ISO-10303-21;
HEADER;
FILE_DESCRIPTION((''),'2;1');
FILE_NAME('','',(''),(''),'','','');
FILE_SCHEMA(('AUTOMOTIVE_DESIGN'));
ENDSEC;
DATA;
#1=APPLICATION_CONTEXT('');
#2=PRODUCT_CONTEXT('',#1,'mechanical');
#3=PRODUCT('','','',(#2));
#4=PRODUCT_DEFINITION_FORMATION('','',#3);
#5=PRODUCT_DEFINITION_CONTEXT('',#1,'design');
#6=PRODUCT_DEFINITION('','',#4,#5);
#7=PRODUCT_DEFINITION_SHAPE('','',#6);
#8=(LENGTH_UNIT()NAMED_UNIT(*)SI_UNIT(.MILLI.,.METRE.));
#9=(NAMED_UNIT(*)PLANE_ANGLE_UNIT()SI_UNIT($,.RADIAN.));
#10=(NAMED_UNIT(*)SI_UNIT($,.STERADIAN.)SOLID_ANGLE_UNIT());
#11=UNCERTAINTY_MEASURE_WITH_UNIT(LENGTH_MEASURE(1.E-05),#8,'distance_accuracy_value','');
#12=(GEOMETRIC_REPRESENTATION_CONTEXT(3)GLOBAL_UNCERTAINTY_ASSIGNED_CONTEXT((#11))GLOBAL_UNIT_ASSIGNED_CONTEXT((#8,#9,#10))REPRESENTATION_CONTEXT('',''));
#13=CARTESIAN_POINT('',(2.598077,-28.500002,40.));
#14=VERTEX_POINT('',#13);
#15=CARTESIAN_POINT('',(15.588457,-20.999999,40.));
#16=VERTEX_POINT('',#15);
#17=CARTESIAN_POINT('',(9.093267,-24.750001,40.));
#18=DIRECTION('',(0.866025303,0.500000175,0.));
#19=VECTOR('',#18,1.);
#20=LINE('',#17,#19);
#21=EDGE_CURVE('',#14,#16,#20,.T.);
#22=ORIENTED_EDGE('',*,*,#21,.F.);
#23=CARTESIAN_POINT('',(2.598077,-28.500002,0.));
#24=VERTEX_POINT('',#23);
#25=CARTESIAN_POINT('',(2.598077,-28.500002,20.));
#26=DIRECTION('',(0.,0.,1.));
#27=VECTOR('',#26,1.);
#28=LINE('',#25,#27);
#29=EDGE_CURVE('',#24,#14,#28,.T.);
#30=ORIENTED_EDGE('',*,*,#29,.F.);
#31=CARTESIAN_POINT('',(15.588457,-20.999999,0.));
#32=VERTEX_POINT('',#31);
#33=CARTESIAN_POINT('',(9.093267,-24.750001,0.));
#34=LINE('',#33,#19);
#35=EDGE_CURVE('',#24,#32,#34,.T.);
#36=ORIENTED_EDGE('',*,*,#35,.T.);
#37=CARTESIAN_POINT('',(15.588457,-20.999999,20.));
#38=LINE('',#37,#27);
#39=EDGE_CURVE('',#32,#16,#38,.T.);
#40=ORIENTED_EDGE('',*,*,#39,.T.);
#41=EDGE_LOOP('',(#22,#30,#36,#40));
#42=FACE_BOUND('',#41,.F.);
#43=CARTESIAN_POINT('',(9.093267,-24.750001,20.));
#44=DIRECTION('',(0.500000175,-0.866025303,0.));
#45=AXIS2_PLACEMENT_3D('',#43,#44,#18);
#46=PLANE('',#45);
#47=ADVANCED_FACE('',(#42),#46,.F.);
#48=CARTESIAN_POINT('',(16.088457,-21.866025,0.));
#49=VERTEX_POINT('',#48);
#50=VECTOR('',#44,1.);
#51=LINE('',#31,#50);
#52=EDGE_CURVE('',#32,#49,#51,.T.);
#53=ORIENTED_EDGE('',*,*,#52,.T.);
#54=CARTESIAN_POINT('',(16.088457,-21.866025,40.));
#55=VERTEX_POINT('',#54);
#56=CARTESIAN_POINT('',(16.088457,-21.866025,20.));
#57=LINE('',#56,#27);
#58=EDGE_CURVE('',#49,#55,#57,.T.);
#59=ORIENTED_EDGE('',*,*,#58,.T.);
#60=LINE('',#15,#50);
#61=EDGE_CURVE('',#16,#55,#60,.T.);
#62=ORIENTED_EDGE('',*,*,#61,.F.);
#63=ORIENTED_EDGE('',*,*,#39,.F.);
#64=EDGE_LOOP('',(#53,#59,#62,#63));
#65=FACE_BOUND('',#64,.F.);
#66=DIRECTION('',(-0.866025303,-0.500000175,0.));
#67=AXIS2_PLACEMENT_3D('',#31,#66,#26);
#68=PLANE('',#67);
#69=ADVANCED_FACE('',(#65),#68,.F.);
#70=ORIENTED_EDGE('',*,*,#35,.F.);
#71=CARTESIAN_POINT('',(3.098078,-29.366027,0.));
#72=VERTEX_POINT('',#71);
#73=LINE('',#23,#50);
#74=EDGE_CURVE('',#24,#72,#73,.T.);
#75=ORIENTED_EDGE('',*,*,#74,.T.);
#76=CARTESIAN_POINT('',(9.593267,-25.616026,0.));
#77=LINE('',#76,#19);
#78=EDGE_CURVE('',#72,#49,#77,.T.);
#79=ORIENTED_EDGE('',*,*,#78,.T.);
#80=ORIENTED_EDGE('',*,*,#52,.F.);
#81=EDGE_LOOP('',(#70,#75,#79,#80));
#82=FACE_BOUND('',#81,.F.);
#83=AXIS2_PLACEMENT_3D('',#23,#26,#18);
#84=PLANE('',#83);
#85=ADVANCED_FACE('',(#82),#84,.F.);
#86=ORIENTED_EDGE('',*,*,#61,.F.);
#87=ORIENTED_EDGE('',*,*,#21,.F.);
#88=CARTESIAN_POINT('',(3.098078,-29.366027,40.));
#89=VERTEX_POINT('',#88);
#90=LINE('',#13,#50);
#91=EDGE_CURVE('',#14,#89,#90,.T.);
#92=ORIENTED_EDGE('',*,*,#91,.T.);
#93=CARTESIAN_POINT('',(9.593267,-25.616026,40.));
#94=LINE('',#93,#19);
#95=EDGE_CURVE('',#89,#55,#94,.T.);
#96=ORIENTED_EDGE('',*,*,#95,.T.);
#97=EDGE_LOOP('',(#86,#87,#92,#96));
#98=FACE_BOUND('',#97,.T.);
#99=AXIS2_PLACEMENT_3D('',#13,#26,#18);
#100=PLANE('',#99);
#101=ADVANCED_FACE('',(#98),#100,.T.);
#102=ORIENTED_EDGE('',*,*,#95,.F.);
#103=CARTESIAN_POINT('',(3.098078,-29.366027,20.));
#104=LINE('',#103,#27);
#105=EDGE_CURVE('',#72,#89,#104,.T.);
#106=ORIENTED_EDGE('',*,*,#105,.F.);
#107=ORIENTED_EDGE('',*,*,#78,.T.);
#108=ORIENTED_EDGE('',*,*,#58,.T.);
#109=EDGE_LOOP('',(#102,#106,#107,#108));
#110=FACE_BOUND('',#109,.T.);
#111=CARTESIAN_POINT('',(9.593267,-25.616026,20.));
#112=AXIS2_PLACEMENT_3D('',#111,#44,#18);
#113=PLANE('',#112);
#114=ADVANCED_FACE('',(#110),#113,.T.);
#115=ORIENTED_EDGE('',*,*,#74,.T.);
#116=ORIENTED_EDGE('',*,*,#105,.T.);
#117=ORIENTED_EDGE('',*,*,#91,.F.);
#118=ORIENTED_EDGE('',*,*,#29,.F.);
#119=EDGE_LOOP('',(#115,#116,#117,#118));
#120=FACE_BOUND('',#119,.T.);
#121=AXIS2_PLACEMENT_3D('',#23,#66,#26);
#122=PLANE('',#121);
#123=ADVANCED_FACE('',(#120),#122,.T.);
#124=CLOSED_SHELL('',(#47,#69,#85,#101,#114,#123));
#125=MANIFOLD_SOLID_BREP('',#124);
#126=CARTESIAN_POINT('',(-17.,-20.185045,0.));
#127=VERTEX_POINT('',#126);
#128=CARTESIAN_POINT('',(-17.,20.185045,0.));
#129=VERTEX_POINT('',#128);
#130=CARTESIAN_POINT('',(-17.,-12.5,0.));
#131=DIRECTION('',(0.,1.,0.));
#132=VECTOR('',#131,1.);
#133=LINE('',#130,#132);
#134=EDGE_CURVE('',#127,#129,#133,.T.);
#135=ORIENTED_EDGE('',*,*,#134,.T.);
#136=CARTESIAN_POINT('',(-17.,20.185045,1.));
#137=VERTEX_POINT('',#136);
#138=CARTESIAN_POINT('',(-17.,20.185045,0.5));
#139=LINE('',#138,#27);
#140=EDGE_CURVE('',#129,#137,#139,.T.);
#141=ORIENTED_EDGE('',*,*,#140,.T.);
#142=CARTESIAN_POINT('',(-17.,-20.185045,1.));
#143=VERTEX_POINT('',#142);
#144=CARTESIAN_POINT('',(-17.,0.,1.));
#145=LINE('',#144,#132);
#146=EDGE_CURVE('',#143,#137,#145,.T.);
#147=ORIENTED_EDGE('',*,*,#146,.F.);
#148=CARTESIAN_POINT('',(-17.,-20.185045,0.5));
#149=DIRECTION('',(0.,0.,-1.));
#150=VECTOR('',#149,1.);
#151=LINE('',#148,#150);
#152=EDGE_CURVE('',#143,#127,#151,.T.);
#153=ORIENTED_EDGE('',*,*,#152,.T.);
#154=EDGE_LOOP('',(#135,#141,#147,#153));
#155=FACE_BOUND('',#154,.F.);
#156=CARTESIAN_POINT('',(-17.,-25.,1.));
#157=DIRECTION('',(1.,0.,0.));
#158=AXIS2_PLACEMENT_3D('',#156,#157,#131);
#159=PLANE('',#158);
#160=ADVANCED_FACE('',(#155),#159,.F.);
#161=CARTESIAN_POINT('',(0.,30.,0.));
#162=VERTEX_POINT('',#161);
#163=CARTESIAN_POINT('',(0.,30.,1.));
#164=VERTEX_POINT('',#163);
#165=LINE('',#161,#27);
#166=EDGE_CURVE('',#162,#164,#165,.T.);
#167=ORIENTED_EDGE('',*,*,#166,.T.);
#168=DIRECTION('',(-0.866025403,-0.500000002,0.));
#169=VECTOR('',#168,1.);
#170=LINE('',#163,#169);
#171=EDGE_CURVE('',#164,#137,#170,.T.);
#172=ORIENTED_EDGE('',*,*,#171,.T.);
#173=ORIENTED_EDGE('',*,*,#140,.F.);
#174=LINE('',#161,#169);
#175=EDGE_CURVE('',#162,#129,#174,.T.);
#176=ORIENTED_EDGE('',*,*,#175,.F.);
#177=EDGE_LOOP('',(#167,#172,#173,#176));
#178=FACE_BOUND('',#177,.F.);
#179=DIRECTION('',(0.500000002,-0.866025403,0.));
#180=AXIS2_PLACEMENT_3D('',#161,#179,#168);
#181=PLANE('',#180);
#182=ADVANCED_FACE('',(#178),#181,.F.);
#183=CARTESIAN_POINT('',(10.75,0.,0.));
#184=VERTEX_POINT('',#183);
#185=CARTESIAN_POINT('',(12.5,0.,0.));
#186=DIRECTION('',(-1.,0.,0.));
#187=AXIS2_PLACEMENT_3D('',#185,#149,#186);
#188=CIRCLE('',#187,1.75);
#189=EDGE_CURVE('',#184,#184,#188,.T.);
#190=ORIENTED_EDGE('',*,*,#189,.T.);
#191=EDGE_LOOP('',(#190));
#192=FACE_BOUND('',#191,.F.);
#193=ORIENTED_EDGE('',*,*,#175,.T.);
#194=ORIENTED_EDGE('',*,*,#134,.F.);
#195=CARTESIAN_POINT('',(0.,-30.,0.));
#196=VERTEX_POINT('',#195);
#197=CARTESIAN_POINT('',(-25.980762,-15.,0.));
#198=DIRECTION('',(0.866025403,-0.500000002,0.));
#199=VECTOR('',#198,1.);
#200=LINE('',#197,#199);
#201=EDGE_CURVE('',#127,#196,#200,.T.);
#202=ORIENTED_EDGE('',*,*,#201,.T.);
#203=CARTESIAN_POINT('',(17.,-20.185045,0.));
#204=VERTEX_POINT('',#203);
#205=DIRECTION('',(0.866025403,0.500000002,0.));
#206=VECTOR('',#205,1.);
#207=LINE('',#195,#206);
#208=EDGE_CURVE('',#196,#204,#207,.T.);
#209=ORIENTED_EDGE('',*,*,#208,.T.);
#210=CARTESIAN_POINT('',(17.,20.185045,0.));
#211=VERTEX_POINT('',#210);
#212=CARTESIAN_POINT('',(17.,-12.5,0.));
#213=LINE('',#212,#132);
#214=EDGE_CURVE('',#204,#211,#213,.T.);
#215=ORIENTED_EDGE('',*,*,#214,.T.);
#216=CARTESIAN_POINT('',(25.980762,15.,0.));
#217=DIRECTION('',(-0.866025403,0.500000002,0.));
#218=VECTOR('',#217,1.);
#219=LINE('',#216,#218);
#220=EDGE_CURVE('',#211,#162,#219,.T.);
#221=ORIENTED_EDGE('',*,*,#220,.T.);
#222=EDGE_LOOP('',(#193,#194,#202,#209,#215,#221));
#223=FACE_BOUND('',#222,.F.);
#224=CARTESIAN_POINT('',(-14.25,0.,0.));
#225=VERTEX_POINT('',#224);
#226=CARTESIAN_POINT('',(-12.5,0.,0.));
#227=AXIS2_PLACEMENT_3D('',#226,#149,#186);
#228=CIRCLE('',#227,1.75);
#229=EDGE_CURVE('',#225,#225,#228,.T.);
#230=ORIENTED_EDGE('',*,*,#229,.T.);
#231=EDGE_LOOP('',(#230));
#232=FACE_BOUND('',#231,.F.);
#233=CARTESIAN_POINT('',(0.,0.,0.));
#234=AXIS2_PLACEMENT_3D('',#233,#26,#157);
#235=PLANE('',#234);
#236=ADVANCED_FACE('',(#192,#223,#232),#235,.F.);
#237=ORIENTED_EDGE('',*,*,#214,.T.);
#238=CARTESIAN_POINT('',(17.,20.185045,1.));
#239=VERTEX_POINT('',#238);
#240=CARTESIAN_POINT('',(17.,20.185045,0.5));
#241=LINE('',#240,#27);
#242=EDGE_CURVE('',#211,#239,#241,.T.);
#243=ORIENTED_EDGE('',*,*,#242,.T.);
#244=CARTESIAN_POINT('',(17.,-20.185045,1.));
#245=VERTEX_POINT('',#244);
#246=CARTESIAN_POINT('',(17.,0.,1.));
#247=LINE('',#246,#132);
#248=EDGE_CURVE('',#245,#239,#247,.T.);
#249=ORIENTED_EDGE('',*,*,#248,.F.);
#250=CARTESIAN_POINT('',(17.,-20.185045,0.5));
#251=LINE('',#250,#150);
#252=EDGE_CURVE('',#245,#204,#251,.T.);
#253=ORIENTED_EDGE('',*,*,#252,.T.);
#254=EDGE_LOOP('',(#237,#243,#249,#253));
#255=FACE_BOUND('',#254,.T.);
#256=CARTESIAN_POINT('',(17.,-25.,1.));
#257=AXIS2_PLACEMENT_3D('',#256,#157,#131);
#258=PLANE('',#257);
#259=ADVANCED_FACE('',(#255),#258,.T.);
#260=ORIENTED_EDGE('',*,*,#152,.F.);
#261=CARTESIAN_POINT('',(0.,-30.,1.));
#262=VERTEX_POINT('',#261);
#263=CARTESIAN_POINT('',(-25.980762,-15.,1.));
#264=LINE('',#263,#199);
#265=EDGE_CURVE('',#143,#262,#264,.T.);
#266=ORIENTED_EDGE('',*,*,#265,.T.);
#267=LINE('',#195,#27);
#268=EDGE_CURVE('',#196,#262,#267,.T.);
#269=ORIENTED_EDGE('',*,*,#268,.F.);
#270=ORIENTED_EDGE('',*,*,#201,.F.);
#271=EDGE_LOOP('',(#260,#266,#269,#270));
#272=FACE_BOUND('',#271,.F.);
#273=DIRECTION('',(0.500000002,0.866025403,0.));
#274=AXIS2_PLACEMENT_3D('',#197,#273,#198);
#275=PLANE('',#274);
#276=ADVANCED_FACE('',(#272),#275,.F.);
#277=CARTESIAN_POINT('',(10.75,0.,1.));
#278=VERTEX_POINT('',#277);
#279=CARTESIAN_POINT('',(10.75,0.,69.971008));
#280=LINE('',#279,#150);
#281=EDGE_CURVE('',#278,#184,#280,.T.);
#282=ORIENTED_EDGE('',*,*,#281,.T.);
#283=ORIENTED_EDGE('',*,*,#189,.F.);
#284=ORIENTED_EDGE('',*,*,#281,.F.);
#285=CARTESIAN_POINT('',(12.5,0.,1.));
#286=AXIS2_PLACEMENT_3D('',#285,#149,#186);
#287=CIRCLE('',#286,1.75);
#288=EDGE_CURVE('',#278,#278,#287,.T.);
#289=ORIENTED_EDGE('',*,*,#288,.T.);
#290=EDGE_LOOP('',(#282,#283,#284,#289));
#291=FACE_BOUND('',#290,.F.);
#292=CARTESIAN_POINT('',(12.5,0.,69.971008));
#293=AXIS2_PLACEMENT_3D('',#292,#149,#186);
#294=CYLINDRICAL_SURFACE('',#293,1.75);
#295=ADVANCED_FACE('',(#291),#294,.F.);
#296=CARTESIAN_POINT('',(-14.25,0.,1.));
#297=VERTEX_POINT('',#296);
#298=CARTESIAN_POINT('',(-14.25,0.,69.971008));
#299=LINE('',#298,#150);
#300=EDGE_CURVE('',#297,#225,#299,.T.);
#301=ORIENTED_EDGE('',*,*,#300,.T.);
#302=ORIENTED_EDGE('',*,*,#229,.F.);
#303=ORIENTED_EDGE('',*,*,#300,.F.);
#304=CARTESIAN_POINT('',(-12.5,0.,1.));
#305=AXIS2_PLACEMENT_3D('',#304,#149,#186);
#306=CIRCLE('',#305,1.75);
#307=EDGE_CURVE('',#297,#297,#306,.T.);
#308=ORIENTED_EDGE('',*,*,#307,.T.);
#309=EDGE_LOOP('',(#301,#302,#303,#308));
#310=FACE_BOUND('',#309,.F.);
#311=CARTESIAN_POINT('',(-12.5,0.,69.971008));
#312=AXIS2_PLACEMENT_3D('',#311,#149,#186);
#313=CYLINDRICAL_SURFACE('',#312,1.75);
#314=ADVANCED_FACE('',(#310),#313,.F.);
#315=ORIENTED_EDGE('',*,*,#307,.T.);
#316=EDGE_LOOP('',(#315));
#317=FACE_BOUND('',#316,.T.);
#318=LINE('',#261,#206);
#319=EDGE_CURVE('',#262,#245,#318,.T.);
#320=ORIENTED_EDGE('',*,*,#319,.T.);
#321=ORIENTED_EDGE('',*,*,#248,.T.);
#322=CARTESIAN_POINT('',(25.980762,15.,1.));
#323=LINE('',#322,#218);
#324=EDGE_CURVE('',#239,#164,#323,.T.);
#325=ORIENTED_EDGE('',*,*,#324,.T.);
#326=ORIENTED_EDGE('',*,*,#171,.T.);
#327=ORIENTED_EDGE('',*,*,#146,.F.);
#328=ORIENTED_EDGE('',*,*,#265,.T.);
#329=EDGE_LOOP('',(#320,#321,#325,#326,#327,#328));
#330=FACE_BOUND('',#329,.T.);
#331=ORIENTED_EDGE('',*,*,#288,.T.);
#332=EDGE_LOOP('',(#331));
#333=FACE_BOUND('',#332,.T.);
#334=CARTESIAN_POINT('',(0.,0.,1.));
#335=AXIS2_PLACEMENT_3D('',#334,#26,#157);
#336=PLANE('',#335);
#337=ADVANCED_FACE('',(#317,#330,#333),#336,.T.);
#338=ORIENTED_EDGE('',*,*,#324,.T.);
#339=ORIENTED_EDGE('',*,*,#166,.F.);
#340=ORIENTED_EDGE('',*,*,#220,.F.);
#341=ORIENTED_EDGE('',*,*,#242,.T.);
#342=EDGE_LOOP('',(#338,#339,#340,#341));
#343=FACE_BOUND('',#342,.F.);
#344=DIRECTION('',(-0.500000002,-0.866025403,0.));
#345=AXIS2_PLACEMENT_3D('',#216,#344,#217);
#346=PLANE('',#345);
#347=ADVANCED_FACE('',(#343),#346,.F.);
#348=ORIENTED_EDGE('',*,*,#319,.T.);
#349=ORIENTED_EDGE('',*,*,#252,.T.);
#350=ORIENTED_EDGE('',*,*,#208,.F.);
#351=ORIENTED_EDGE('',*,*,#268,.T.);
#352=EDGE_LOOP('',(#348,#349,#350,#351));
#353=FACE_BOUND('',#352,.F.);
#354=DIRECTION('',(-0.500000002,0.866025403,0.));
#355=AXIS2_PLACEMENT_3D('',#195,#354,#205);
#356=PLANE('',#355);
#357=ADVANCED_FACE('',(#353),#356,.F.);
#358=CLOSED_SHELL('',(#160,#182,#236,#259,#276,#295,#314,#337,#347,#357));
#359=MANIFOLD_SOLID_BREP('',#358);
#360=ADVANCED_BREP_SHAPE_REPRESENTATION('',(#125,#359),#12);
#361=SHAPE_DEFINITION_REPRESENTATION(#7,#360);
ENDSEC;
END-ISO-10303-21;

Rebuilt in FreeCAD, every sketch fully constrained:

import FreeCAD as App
import Part
import Sketcher
Q = App.Units.Quantity


def add_polygon(sketch, points):
    """Adds a closed chain of lines whose ends are joined by coincident constraints."""
    first, n = sketch.GeometryCount, len(points)
    for a, b in zip(points, points[1:] + points[:1]):
        sketch.addGeometry(Part.LineSegment(App.Vector(*a, 0), App.Vector(*b, 0)), False)
    for i in range(n):
        sketch.addConstraint(Sketcher.Constraint("Coincident", first + i, 2, first + (i + 1) % n, 1))

doc = App.newDocument("Part")
body = doc.addObject("PartDesign::Body", "Body")

sketch1 = body.newObject("Sketcher::SketchObject", "Sketch")
sketch1.AttachmentSupport = (doc.getObject("XY_Plane"), [""])
sketch1.MapMode = "FlatFace"
add_polygon(sketch1, [(25.980762, -15), (25.980762, 15), (0, 30), (-25.980762, 15), (-25.980762, -15), (0, -30)])
sketch1.addConstraint([
    Sketcher.Constraint("Vertical", 0),
    Sketcher.Constraint("Vertical", 3),
    Sketcher.Constraint("Symmetric", 0, 2, 3, 2, -1, 1),
    Sketcher.Constraint("Symmetric", 1, 2, 4, 2, -1, 1),
    Sketcher.Constraint("PointOnObject", 1, 2, -2),
    Sketcher.Constraint("Parallel", 2, 5),
    Sketcher.Constraint("Horizontal", 0, 2, 2, 2),
    Sketcher.Constraint("DistanceY", 0, 1, 0, 2, 30.0),
    Sketcher.Constraint("Angle", 1, Q("150 deg")),
    Sketcher.Constraint("Distance", 1, 30.0),
])
pad1 = body.newObject("PartDesign::Pad", "Pad")
pad1.Profile = sketch1
pad1.Length = 1

sketch2 = body.newObject("Sketcher::SketchObject", "Sketch001")
sketch2.AttachmentSupport = (doc.getObject("XY_Plane"), [""])
sketch2.MapMode = "FlatFace"
sketch2.AttachmentOffset = App.Placement(App.Vector(0, 0, 1), App.Rotation())
add_polygon(sketch2, [(-32, 25), (-32, -25), (-17, -25), (-17, 25)])
add_polygon(sketch2, [(17, 25), (17, -25), (32, -25), (32, 25)])
sketch2.addConstraint([
    Sketcher.Constraint("Vertical", 0),
    Sketcher.Constraint("Horizontal", 1),
    Sketcher.Constraint("Vertical", 2),
    Sketcher.Constraint("Horizontal", 3),
    Sketcher.Constraint("Vertical", 4),
    Sketcher.Constraint("Horizontal", 5),
    Sketcher.Constraint("Vertical", 6),
    Sketcher.Constraint("Horizontal", 7),
    Sketcher.Constraint("Symmetric", 2, 2, 4, 2, -1, 1),
    Sketcher.Constraint("Symmetric", 0, 2, 6, 2, -1, 1),
    Sketcher.Constraint("Horizontal", 1, 2, 4, 2),
    Sketcher.Constraint("DistanceX", 1, 1, 1, 2, 15.0),
    Sketcher.Constraint("DistanceY", 0, 2, 0, 1, 50.0),
    Sketcher.Constraint("DistanceX", 0, 2, -1, 1, 32.0),
])
pocket1 = body.newObject("PartDesign::Pocket", "Pocket")
pocket1.Profile = sketch2
pocket1.Length = 25

sketch3 = body.newObject("Sketcher::SketchObject", "Sketch002")
sketch3.AttachmentSupport = (doc.getObject("XY_Plane"), [""])
sketch3.MapMode = "FlatFace"
sketch3.AttachmentOffset = App.Placement(App.Vector(0, 0, 1), App.Rotation())
sketch3.addGeometry([
    Part.Circle(App.Vector(12.5, 0, 0), App.Vector(0, 0, 1), 1.75),
    Part.Circle(App.Vector(-12.5, 0, 0), App.Vector(0, 0, 1), 1.75),
], False)
sketch3.addConstraint([
    Sketcher.Constraint("Equal", 0, 1),
    Sketcher.Constraint("Symmetric", 0, 3, 1, 3, -1, 1),
    Sketcher.Constraint("PointOnObject", 0, 3, -1),
    Sketcher.Constraint("Diameter", 0, 3.5),
    Sketcher.Constraint("DistanceX", 1, 3, 0, 3, 25.0),
])
doc.recompute()
hole = body.newObject("PartDesign::Hole", "Hole")
hole.Profile = sketch3
hole.ThreadType = "None"
hole.Diameter = 3.5
hole.DepthType = "ThroughAll"
body2 = doc.addObject("PartDesign::Body", "Body001")

sketch4 = body2.newObject("Sketcher::SketchObject", "Sketch003")
sketch4.Placement = App.Placement(App.Vector(12.990381, -22.5, 0), App.Rotation(App.Vector(0.866025303, 0.500000175, 0), App.Vector(0, 0, 1), App.Vector(0.500000175, -0.866025303, 0), "ZXY"))
add_polygon(sketch4, [(-12, 40), (-12, 0), (3, 0), (3, 40)])
sketch4.addConstraint([
    Sketcher.Constraint("Vertical", 0),
    Sketcher.Constraint("Horizontal", 1),
    Sketcher.Constraint("Vertical", 2),
    Sketcher.Constraint("Horizontal", 3),
    Sketcher.Constraint("PointOnObject", 0, 2, -1),
    Sketcher.Constraint("DistanceX", 1, 1, 1, 2, 15.0),
    Sketcher.Constraint("DistanceY", 0, 2, 0, 1, 40.0),
    Sketcher.Constraint("DistanceX", 0, 2, -1, 1, 12.0),
])
pad2 = body2.newObject("PartDesign::Pad", "Pad001")
pad2.Profile = sketch4
pad2.Length = 1

doc.recompute()
